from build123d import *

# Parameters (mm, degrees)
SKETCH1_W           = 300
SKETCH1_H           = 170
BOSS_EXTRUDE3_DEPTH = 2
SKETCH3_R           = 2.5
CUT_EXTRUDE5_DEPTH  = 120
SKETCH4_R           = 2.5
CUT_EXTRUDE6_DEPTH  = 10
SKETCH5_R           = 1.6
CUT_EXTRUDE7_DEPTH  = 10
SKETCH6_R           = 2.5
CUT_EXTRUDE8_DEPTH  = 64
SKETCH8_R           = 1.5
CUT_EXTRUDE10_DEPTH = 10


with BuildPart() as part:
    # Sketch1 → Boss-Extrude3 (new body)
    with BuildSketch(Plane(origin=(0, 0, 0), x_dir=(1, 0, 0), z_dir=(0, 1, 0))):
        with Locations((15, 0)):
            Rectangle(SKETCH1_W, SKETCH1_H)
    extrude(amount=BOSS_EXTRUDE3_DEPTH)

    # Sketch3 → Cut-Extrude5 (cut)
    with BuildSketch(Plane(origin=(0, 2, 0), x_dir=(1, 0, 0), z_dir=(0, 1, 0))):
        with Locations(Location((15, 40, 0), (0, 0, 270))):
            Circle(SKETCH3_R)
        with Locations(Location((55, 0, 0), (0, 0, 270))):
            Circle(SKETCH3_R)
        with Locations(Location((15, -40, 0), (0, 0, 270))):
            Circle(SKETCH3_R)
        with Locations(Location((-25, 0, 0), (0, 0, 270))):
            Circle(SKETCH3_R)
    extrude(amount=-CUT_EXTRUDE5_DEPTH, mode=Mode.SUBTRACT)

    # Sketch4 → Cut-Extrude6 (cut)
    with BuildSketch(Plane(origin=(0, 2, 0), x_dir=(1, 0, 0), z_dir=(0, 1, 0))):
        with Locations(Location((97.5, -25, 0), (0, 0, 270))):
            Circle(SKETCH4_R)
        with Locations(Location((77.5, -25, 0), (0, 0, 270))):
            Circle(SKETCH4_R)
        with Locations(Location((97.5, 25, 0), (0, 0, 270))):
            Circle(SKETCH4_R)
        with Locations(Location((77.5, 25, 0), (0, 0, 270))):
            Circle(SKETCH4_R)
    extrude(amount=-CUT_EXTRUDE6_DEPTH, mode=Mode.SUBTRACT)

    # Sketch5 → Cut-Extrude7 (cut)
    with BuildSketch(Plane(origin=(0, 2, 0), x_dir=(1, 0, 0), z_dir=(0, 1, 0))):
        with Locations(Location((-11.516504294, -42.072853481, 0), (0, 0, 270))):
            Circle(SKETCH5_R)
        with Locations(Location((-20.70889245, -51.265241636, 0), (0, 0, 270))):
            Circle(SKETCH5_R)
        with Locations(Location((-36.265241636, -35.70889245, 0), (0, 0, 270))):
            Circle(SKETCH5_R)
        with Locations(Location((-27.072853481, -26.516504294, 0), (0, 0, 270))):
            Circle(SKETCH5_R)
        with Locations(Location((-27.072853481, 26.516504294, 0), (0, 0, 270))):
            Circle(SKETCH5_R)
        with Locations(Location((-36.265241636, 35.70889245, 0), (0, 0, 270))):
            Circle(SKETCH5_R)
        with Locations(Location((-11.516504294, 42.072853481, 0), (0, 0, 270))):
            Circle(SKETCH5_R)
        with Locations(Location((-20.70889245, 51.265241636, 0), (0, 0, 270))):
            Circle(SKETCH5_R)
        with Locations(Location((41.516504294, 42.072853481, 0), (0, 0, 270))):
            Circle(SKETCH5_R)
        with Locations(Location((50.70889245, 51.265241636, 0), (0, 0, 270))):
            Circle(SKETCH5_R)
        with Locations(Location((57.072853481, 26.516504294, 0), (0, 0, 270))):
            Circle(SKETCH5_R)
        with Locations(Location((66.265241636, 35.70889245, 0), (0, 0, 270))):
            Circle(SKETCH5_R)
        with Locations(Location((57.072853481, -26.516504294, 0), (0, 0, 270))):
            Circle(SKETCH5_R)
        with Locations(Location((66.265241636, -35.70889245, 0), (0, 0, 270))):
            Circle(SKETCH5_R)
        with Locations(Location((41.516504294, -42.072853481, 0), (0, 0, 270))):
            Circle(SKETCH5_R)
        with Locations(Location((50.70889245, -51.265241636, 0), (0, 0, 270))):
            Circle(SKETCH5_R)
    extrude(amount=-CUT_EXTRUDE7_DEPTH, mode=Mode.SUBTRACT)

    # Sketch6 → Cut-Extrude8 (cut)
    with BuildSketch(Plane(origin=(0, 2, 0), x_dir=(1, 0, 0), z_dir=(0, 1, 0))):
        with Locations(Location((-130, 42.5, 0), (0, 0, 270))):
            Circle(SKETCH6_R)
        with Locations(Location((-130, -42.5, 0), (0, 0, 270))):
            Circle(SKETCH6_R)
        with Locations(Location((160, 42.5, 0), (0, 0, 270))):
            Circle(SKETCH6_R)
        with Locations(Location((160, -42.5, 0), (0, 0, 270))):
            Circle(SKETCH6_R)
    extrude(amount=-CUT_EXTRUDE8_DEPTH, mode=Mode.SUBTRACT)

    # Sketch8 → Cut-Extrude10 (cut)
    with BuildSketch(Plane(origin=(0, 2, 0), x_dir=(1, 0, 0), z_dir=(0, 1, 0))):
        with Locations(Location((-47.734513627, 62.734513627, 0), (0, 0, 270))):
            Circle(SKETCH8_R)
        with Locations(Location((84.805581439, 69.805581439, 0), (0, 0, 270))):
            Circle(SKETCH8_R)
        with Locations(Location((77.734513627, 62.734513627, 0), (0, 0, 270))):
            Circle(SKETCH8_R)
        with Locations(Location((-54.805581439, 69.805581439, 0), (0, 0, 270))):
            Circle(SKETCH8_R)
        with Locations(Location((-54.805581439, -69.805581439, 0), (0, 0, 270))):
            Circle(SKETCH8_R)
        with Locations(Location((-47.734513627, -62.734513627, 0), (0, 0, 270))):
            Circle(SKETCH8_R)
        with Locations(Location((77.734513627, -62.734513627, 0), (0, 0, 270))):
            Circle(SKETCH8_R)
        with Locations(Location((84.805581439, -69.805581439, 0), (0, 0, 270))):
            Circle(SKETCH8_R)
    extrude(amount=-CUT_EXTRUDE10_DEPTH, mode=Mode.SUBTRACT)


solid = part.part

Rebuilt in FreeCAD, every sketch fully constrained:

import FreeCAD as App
import Part
import Sketcher
Q = App.Units.Quantity

doc = App.newDocument("Part")
params = doc.addObject("Spreadsheet::Sheet", "Params")
for row, (alias, value) in enumerate([
    ("sketch1_width", "300 mm"),
    ("sketch1_height", "170 mm"),
    ("pad1_length", "2 mm"),
    ("sketch2_diameter", "5 mm"),
    ("pocket1_length", "120 mm"),
    ("sketch3_diameter", "5 mm"),
    ("pocket2_length", "10 mm"),
    ("sketch4_diameter", "3.2 mm"),
    ("pocket3_length", "10 mm"),
    ("sketch5_diameter", "5 mm"),
    ("pocket4_length", "64 mm"),
    ("sketch6_diameter", "3 mm"),
    ("pocket5_length", "10 mm"),
], start=1):
    params.set(f"A{row}", alias)
    params.set(f"B{row}", "=" + value)
    params.setAlias(f"B{row}", alias)

body = doc.addObject("PartDesign::Body", "Body")

# Sketch on XZ plane
sketch1 = body.newObject("Sketcher::SketchObject", "Sketch")
sketch1.AttachmentSupport = (doc.getObject("XZ_Plane"), [""])
sketch1.MapMode = "FlatFace"
sketch1.addGeometry([
    Part.LineSegment(App.Vector(-135, -85, 0), App.Vector(-135, 85, 0)),
    Part.LineSegment(App.Vector(-135, 85, 0), App.Vector(165, 85, 0)),
    Part.LineSegment(App.Vector(165, 85, 0), App.Vector(165, -85, 0)),
    Part.LineSegment(App.Vector(165, -85, 0), App.Vector(-135, -85, 0)),
], False)
sketch1.addConstraint([
    Sketcher.Constraint("Coincident", 0, 2, 1, 1),
    Sketcher.Constraint("Coincident", 1, 2, 2, 1),
    Sketcher.Constraint("Coincident", 2, 2, 3, 1),
    Sketcher.Constraint("Coincident", 3, 2, 0, 1),
    Sketcher.Constraint("Vertical", 0),
    Sketcher.Constraint("Horizontal", 1),
    Sketcher.Constraint("Vertical", 2),
    Sketcher.Constraint("Horizontal", 3),
    Sketcher.Constraint("DistanceX", 1, 1, 1, 2, Q("300 mm")),
    Sketcher.Constraint("DistanceY", 0, 1, 0, 2, Q("170 mm")),
    Sketcher.Constraint("DistanceX", 0, 2, -1, 1, Q("135 mm")),
    Sketcher.Constraint("DistanceY", -1, 1, 0, 2, Q("85 mm")),
])
sketch1.setExpression("Constraints[8]", "Params.sketch1_width")
sketch1.setExpression("Constraints[9]", "Params.sketch1_height")
pad1 = body.newObject("PartDesign::Pad", "Pad")
pad1.Profile = sketch1
pad1.setExpression("Length", "Params.pad1_length")
pad1.Reversed = True

# Sketch on XZ plane
sketch2 = body.newObject("Sketcher::SketchObject", "Sketch001")
sketch2.AttachmentSupport = (doc.getObject("XZ_Plane"), [""])
sketch2.MapMode = "FlatFace"
sketch2.AttachmentOffset = App.Placement(App.Vector(0, 0, -2), App.Rotation())
sketch2.addGeometry([
    Part.Circle(App.Vector(15, -40, 0), App.Vector(0, 0, 1), 2.5),
    Part.Circle(App.Vector(55, 0, 0), App.Vector(0, 0, 1), 2.5),
    Part.Circle(App.Vector(15, 40, 0), App.Vector(0, 0, 1), 2.5),
    Part.Circle(App.Vector(-25, 0, 0), App.Vector(0, 0, 1), 2.5),
], False)
sketch2.addConstraint([
    Sketcher.Constraint("Equal", 0, 1),
    Sketcher.Constraint("Equal", 1, 2),
    Sketcher.Constraint("Equal", 2, 3),
    Sketcher.Constraint("Symmetric", 0, 3, 2, 3, -1),
    Sketcher.Constraint("PointOnObject", 1, 3, -1),
    Sketcher.Constraint("PointOnObject", 3, 3, -1),
    Sketcher.Constraint("Diameter", 0, Q("5 mm")),
    Sketcher.Constraint("DistanceX", -1, 1, 0, 3, Q("15 mm")),
    Sketcher.Constraint("DistanceY", 0, 3, -1, 1, Q("40 mm")),
    Sketcher.Constraint("DistanceX", -1, 1, 1, 3, Q("55 mm")),
    Sketcher.Constraint("DistanceX", 3, 3, -1, 1, Q("25 mm")),
])
sketch2.setExpression("Constraints[6]", "Params.sketch2_diameter")
pocket1 = body.newObject("PartDesign::Pocket", "Pocket")
pocket1.Profile = sketch2
pocket1.setExpression("Length", "Params.pocket1_length")
pocket1.Reversed = True

# Sketch on XZ plane
sketch3 = body.newObject("Sketcher::SketchObject", "Sketch002")
sketch3.AttachmentSupport = (doc.getObject("XZ_Plane"), [""])
sketch3.MapMode = "FlatFace"
sketch3.AttachmentOffset = App.Placement(App.Vector(0, 0, -2), App.Rotation())
sketch3.addGeometry([
    Part.Circle(App.Vector(97.5, 25, 0), App.Vector(0, 0, 1), 2.5),
    Part.Circle(App.Vector(77.5, 25, 0), App.Vector(0, 0, 1), 2.5),
    Part.Circle(App.Vector(97.5, -25, 0), App.Vector(0, 0, 1), 2.5),
    Part.Circle(App.Vector(77.5, -25, 0), App.Vector(0, 0, 1), 2.5),
], False)
sketch3.addConstraint([
    Sketcher.Constraint("Equal", 0, 1),
    Sketcher.Constraint("Equal", 1, 2),
    Sketcher.Constraint("Equal", 2, 3),
    Sketcher.Constraint("Symmetric", 0, 3, 2, 3, -1),
    Sketcher.Constraint("Symmetric", 1, 3, 3, 3, -1),
    Sketcher.Constraint("Horizontal", 0, 3, 1, 3),
    Sketcher.Constraint("Diameter", 0, Q("5 mm")),
    Sketcher.Constraint("DistanceY", -1, 1, 0, 3, Q("25 mm")),
    Sketcher.Constraint("DistanceX", 1, 3, 0, 3, Q("20 mm")),
    Sketcher.Constraint("DistanceX", -1, 1, 0, 3, Q("97.5 mm")),
])
sketch3.setExpression("Constraints[6]", "Params.sketch3_diameter")
pocket2 = body.newObject("PartDesign::Pocket", "Pocket001")
pocket2.Profile = sketch3
pocket2.setExpression("Length", "Params.pocket2_length")
pocket2.Reversed = True

# Sketch on XZ plane
sketch4 = body.newObject("Sketcher::SketchObject", "Sketch003")
sketch4.AttachmentSupport = (doc.getObject("XZ_Plane"), [""])
sketch4.MapMode = "FlatFace"
sketch4.AttachmentOffset = App.Placement(App.Vector(0, 0, -2), App.Rotation())
sketch4.addGeometry([
    Part.Circle(App.Vector(-11.516504, 42.072853, 0), App.Vector(0, 0, 1), 1.6),  # 0
    Part.Circle(App.Vector(-20.708892, 51.265242, 0), App.Vector(0, 0, 1), 1.6),  # 1
    Part.Circle(App.Vector(-36.265242, 35.708892, 0), App.Vector(0, 0, 1), 1.6),  # 2
    Part.Circle(App.Vector(-27.072853, 26.516504, 0), App.Vector(0, 0, 1), 1.6),  # 3
    Part.Circle(App.Vector(-27.072853, -26.516504, 0), App.Vector(0, 0, 1), 1.6),  # 4
    Part.Circle(App.Vector(-36.265242, -35.708892, 0), App.Vector(0, 0, 1), 1.6),  # 5
    Part.Circle(App.Vector(-11.516504, -42.072853, 0), App.Vector(0, 0, 1), 1.6),  # 6
    Part.Circle(App.Vector(-20.708892, -51.265242, 0), App.Vector(0, 0, 1), 1.6),  # 7
    Part.Circle(App.Vector(41.516504, -42.072853, 0), App.Vector(0, 0, 1), 1.6),  # 8
    Part.Circle(App.Vector(50.708892, -51.265242, 0), App.Vector(0, 0, 1), 1.6),  # 9
    Part.Circle(App.Vector(57.072853, -26.516504, 0), App.Vector(0, 0, 1), 1.6),  # 10
    Part.Circle(App.Vector(66.265242, -35.708892, 0), App.Vector(0, 0, 1), 1.6),  # 11
    Part.Circle(App.Vector(57.072853, 26.516504, 0), App.Vector(0, 0, 1), 1.6),  # 12
    Part.Circle(App.Vector(66.265242, 35.708892, 0), App.Vector(0, 0, 1), 1.6),  # 13
    Part.Circle(App.Vector(41.516504, 42.072853, 0), App.Vector(0, 0, 1), 1.6),  # 14
    Part.Circle(App.Vector(50.708892, 51.265242, 0), App.Vector(0, 0, 1), 1.6),  # 15
], False)
sketch4.addConstraint([
    Sketcher.Constraint("Equal", 0, 1),
    Sketcher.Constraint("Equal", 1, 2),
    Sketcher.Constraint("Equal", 2, 3),
    Sketcher.Constraint("Equal", 3, 4),
    Sketcher.Constraint("Equal", 4, 5),
    Sketcher.Constraint("Equal", 5, 6),
    Sketcher.Constraint("Equal", 6, 7),
    Sketcher.Constraint("Equal", 7, 8),
    Sketcher.Constraint("Equal", 8, 9),
    Sketcher.Constraint("Equal", 9, 10),
    Sketcher.Constraint("Equal", 10, 11),
    Sketcher.Constraint("Equal", 11, 12),
    Sketcher.Constraint("Equal", 12, 13),
    Sketcher.Constraint("Equal", 13, 14),
    Sketcher.Constraint("Equal", 14, 15),
    Sketcher.Constraint("Symmetric", 3, 3, 4, 3, -1),
    Sketcher.Constraint("Symmetric", 2, 3, 5, 3, -1),
    Sketcher.Constraint("Symmetric", 0, 3, 6, 3, -1),
    Sketcher.Constraint("Symmetric", 1, 3, 7, 3, -1),
    Sketcher.Constraint("Symmetric", 10, 3, 12, 3, -1),
    Sketcher.Constraint("Symmetric", 11, 3, 13, 3, -1),
    Sketcher.Constraint("Symmetric", 8, 3, 14, 3, -1),
    Sketcher.Constraint("Symmetric", 9, 3, 15, 3, -1),
    Sketcher.Constraint("Horizontal", 6, 3, 8, 3),
    Sketcher.Constraint("Horizontal", 7, 3, 9, 3),
    Sketcher.Constraint("Horizontal", 4, 3, 10, 3),
    Sketcher.Constraint("Horizontal", 5, 3, 11, 3),
    Sketcher.Constraint("Diameter", 0, Q("3.2 mm")),
    Sketcher.Constraint("DistanceY", -1, 1, 1, 3, Q("51.265242 mm")),
    Sketcher.Constraint("DistanceX", 2, 3, -1, 1, Q("36.265242 mm")),
    Sketcher.Constraint("DistanceX", -1, 1, 11, 3, Q("66.265242 mm")),
    Sketcher.Constraint("DistanceX", 1, 3, 0, 3, Q("9.192388 mm")),
    Sketcher.Constraint("DistanceY", 0, 3, 1, 3, Q("9.192388 mm")),
    Sketcher.Constraint("DistanceX", 2, 3, 1, 3, Q("15.556349 mm")),
    Sketcher.Constraint("DistanceY", 2, 3, 1, 3, Q("15.556349 mm")),
    Sketcher.Constraint("DistanceX", 2, 3, 3, 3, Q("9.192388 mm")),
    Sketcher.Constraint("DistanceY", 3, 3, 2, 3, Q("9.192388 mm")),
    Sketcher.Constraint("DistanceX", 6, 3, 8, 3, Q("53.033009 mm")),
    Sketcher.Constraint("DistanceX", 8, 3, 9, 3, Q("9.192388 mm")),
    Sketcher.Constraint("DistanceX", 8, 3, 10, 3, Q("15.556349 mm")),
])
sketch4.setExpression("Constraints[27]", "Params.sketch4_diameter")
pocket3 = body.newObject("PartDesign::Pocket", "Pocket002")
pocket3.Profile = sketch4
pocket3.setExpression("Length", "Params.pocket3_length")
pocket3.Reversed = True

# Sketch on XZ plane
sketch5 = body.newObject("Sketcher::SketchObject", "Sketch004")
sketch5.AttachmentSupport = (doc.getObject("XZ_Plane"), [""])
sketch5.MapMode = "FlatFace"
sketch5.AttachmentOffset = App.Placement(App.Vector(0, 0, -2), App.Rotation())
sketch5.addGeometry([
    Part.Circle(App.Vector(-130, -42.5, 0), App.Vector(0, 0, 1), 2.5),
    Part.Circle(App.Vector(-130, 42.5, 0), App.Vector(0, 0, 1), 2.5),
    Part.Circle(App.Vector(160, -42.5, 0), App.Vector(0, 0, 1), 2.5),
    Part.Circle(App.Vector(160, 42.5, 0), App.Vector(0, 0, 1), 2.5),
], False)
sketch5.addConstraint([
    Sketcher.Constraint("Equal", 0, 1),
    Sketcher.Constraint("Equal", 1, 2),
    Sketcher.Constraint("Equal", 2, 3),
    Sketcher.Constraint("Symmetric", 0, 3, 1, 3, -1),
    Sketcher.Constraint("Symmetric", 2, 3, 3, 3, -1),
    Sketcher.Constraint("Horizontal", 0, 3, 2, 3),
    Sketcher.Constraint("Diameter", 0, Q("5 mm")),
    Sketcher.Constraint("DistanceX", 0, 3, -1, 1, Q("130 mm")),
    Sketcher.Constraint("DistanceX", -1, 1, 2, 3, Q("160 mm")),
    Sketcher.Constraint("DistanceY", 0, 3, 1, 3, Q("85 mm")),
])
sketch5.setExpression("Constraints[6]", "Params.sketch5_diameter")
pocket4 = body.newObject("PartDesign::Pocket", "Pocket003")
pocket4.Profile = sketch5
pocket4.setExpression("Length", "Params.pocket4_length")
pocket4.Reversed = True

# Sketch on XZ plane
sketch6 = body.newObject("Sketcher::SketchObject", "Sketch005")
sketch6.AttachmentSupport = (doc.getObject("XZ_Plane"), [""])
sketch6.MapMode = "FlatFace"
sketch6.AttachmentOffset = App.Placement(App.Vector(0, 0, -2), App.Rotation())
sketch6.addGeometry([
    Part.Circle(App.Vector(-47.734514, -62.734514, 0), App.Vector(0, 0, 1), 1.5),  # 0
    Part.Circle(App.Vector(84.805581, -69.805581, 0), App.Vector(0, 0, 1), 1.5),  # 1
    Part.Circle(App.Vector(77.734514, -62.734514, 0), App.Vector(0, 0, 1), 1.5),  # 2
    Part.Circle(App.Vector(-54.805581, -69.805581, 0), App.Vector(0, 0, 1), 1.5),  # 3
    Part.Circle(App.Vector(-54.805581, 69.805581, 0), App.Vector(0, 0, 1), 1.5),  # 4
    Part.Circle(App.Vector(-47.734514, 62.734514, 0), App.Vector(0, 0, 1), 1.5),  # 5
    Part.Circle(App.Vector(77.734514, 62.734514, 0), App.Vector(0, 0, 1), 1.5),  # 6
    Part.Circle(App.Vector(84.805581, 69.805581, 0), App.Vector(0, 0, 1), 1.5),  # 7
], False)
sketch6.addConstraint([
    Sketcher.Constraint("Equal", 0, 1),
    Sketcher.Constraint("Equal", 1, 2),
    Sketcher.Constraint("Equal", 2, 3),
    Sketcher.Constraint("Equal", 3, 4),
    Sketcher.Constraint("Equal", 4, 5),
    Sketcher.Constraint("Equal", 5, 6),
    Sketcher.Constraint("Equal", 6, 7),
    Sketcher.Constraint("Symmetric", 3, 3, 4, 3, -1),
    Sketcher.Constraint("Symmetric", 0, 3, 5, 3, -1),
    Sketcher.Constraint("Symmetric", 2, 3, 6, 3, -1),
    Sketcher.Constraint("Symmetric", 1, 3, 7, 3, -1),
    Sketcher.Constraint("Horizontal", 0, 3, 2, 3),
    Sketcher.Constraint("Horizontal", 1, 3, 3, 3),
    Sketcher.Constraint("Diameter", 0, Q("3 mm")),
    Sketcher.Constraint("DistanceX", -1, 1, 1, 3, Q("84.805581 mm")),
    Sketcher.Constraint("DistanceY", 1, 3, -1, 1, Q("69.805581 mm")),
    Sketcher.Constraint("DistanceX", 3, 3, -1, 1, Q("54.805581 mm")),
    Sketcher.Constraint("DistanceX", 0, 3, -1, 1, Q("47.734514 mm")),
    Sketcher.Constraint("DistanceY", 0, 3, -1, 1, Q("62.734514 mm")),
    Sketcher.Constraint("DistanceX", -1, 1, 2, 3, Q("77.734514 mm")),
])
sketch6.setExpression("Constraints[13]", "Params.sketch6_diameter")
pocket5 = body.newObject("PartDesign::Pocket", "Pocket004")
pocket5.Profile = sketch6
pocket5.setExpression("Length", "Params.pocket5_length")
pocket5.Reversed = True

doc.recompute()
